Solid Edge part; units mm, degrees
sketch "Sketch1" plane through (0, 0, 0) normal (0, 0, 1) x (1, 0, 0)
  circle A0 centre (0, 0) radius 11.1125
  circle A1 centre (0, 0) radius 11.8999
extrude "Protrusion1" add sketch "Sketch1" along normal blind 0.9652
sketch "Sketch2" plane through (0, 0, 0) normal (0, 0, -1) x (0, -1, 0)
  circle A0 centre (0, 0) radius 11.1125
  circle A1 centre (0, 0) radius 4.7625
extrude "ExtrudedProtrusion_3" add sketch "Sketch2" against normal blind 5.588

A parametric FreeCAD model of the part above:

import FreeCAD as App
import Part
import Sketcher
Q = App.Units.Quantity

doc = App.newDocument("Part")
params = doc.addObject("Spreadsheet::Sheet", "Params")
for row, (alias, value) in enumerate([
    ("sketch1_diameter", "0.937 in"),
    ("sketch1_diameter2", "0.875 in"),
    ("pad1_length", "0.038 in"),
    ("sketch2_diameter", "0.875 in"),
    ("sketch2_diameter2", "0.375 in"),
    ("pad2_length", "0.22 in"),
], start=1):
    params.set(f"A{row}", alias)
    params.set(f"B{row}", "=" + value)
    params.setAlias(f"B{row}", alias)

body = doc.addObject("PartDesign::Body", "Body")

sketch1 = body.newObject("Sketcher::SketchObject", "Sketch")
sketch1.AttachmentSupport = (doc.getObject("XY_Plane"), [""])
sketch1.MapMode = "FlatFace"
sketch1.addGeometry([
    Part.Circle(App.Vector(0, 0, 0), App.Vector(0, 0, 1), 11.8999),
    Part.Circle(App.Vector(0, 0, 0), App.Vector(0, 0, 1), 11.1125),
], False)
sketch1.addConstraint([
    Sketcher.Constraint("Coincident", 0, 3, -1, 1),
    Sketcher.Constraint("Coincident", 1, 3, -1, 1),
    Sketcher.Constraint("Diameter", 0, Q("0.937 in")),
    Sketcher.Constraint("Diameter", 1, Q("0.875 in")),
])
sketch1.setExpression("Constraints[2]", "Params.sketch1_diameter")
sketch1.setExpression("Constraints[3]", "Params.sketch1_diameter2")
pad1 = body.newObject("PartDesign::Pad", "Pad")
pad1.Profile = sketch1
pad1.setExpression("Length", "Params.pad1_length")

sketch2 = body.newObject("Sketcher::SketchObject", "Sketch001")
sketch2.AttachmentSupport = (doc.getObject("XY_Plane"), [""])
sketch2.MapMode = "FlatFace"
sketch2.addGeometry([
    Part.Circle(App.Vector(0, 0, 0), App.Vector(0, 0, 1), 11.1125),
    Part.Circle(App.Vector(0, 0, 0), App.Vector(0, 0, 1), 4.7625),
], False)
sketch2.addConstraint([
    Sketcher.Constraint("Coincident", 0, 3, -1, 1),
    Sketcher.Constraint("Coincident", 1, 3, -1, 1),
    Sketcher.Constraint("Diameter", 0, Q("0.875 in")),
    Sketcher.Constraint("Diameter", 1, Q("0.375 in")),
])
sketch2.setExpression("Constraints[2]", "Params.sketch2_diameter")
sketch2.setExpression("Constraints[3]", "Params.sketch2_diameter2")
pad2 = body.newObject("PartDesign::Pad", "Pad001")
pad2.Profile = sketch2
pad2.setExpression("Length", "Params.pad2_length")

doc.recompute()
